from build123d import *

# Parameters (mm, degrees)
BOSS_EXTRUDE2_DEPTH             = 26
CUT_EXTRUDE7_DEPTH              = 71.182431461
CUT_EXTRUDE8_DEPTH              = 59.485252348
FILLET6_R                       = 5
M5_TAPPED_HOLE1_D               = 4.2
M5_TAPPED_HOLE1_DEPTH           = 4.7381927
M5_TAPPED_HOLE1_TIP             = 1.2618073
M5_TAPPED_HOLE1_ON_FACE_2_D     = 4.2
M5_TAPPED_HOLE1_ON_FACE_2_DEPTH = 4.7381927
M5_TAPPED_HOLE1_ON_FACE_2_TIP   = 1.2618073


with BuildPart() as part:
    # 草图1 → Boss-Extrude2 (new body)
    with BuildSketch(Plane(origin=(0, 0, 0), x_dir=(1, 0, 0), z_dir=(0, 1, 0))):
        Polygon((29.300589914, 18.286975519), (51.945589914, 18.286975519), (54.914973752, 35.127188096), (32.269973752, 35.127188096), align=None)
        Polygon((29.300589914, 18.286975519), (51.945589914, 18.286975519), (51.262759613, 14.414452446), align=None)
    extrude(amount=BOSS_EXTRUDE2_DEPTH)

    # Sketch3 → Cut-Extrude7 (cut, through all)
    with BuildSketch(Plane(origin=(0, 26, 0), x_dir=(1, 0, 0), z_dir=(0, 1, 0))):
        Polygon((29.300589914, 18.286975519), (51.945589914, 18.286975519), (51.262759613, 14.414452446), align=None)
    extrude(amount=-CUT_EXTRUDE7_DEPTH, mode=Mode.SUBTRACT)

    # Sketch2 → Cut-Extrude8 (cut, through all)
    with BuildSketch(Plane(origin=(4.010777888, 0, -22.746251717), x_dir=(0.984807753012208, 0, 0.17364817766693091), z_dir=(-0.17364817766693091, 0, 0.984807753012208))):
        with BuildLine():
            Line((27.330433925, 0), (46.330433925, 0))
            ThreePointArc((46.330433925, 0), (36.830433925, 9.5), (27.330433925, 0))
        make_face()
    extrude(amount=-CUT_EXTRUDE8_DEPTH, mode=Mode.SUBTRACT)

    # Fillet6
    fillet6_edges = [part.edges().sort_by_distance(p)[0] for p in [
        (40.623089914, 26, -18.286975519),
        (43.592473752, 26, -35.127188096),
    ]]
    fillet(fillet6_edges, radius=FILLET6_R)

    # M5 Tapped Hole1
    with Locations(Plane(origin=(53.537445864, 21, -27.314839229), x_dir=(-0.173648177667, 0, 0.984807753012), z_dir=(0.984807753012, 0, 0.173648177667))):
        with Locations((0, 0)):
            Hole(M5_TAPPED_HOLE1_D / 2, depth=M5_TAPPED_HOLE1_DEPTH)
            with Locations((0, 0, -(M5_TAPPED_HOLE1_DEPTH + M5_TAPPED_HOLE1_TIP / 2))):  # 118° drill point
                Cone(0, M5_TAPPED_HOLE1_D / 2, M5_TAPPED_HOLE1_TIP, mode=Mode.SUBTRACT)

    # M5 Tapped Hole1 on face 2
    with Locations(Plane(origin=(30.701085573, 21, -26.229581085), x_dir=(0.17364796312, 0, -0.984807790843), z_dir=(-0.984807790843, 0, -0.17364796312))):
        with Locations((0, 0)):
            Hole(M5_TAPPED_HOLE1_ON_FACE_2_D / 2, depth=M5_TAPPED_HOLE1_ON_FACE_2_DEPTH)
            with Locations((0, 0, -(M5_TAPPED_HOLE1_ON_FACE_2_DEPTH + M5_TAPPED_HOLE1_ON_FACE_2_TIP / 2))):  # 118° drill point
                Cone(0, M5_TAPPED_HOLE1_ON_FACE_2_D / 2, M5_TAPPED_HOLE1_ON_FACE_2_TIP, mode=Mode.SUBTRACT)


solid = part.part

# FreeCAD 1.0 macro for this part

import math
import FreeCAD as App
import Part
import Sketcher

V = App.Vector
Q = App.Units.Quantity


def edges_at(feature, points):
    """Names of the edges that pass closest to the given points."""
    edges = feature.Shape.Edges
    near = lambda p: min(range(len(edges)), key=lambda i: edges[i].distToShape(Part.Vertex(*p))[0])
    return sorted({f"Edge{near(p) + 1}" for p in points})


def add_polygon(sketch, points):
    """Adds a closed chain of lines whose ends are joined by coincident constraints."""
    first, n = sketch.GeometryCount, len(points)
    for a, b in zip(points, points[1:] + points[:1]):
        sketch.addGeometry(Part.LineSegment(App.Vector(*a, 0), App.Vector(*b, 0)), False)
    for i in range(n):
        sketch.addConstraint(Sketcher.Constraint("Coincident", first + i, 2, first + (i + 1) % n, 1))

doc = App.newDocument("Part")
body = doc.addObject("PartDesign::Body", "Body")

sketch1 = body.newObject("Sketcher::SketchObject", "Sketch")
sketch1.AttachmentSupport = (doc.getObject("XZ_Plane"), [""])
sketch1.MapMode = "FlatFace"
add_polygon(sketch1, [(51.9, -18.3), (54.9, -35.1), (32.3, -35.1), (29.3, -18.3), (51.3, -14.4)])
sketch1.addConstraint([
    Sketcher.Constraint("Horizontal", 1),
    Sketcher.Constraint("Parallel", 0, 2),
    Sketcher.Constraint("Perpendicular", 2, 3),
    Sketcher.Constraint("Perpendicular", 3, 4),
    Sketcher.Constraint("Horizontal", 2, 2, 4, 2),
    Sketcher.Constraint("Angle", 0, Q("-80 deg")),
    Sketcher.Constraint("Distance", 0, Q("17.1 mm")),
    Sketcher.Constraint("DistanceX", 1, 2, 1, 1, Q("22.645 mm")),
    Sketcher.Constraint("DistanceY", 0, 2, -1, 1, Q("35.127188 mm")),
    Sketcher.Constraint("DistanceX", -1, 1, 2, 2, Q("29.30059 mm")),
])
pad1 = body.newObject("PartDesign::Pad", "Pad")
pad1.Profile = sketch1
pad1.Length = 26
pad1.Reversed = True

sketch2 = body.newObject("Sketcher::SketchObject", "Sketch001")
sketch2.AttachmentSupport = (doc.getObject("XZ_Plane"), [""])
sketch2.MapMode = "FlatFace"
sketch2.AttachmentOffset = App.Placement(V(0, 0, -26), App.Rotation())
add_polygon(sketch2, [(51.9, -18.3), (29.3, -18.3), (51.3, -14.4)])
sketch2.addConstraint([
    Sketcher.Constraint("Horizontal", 0),
    Sketcher.Constraint("Perpendicular", 1, 2),
    Sketcher.Constraint("Angle", 1, Q("10 deg")),
    Sketcher.Constraint("DistanceX", 0, 2, 0, 1, Q("22.645 mm")),
    Sketcher.Constraint("DistanceX", -1, 1, 0, 2, Q("29.30059 mm")),
    Sketcher.Constraint("DistanceY", 0, 2, -1, 1, Q("18.286976 mm")),
])
pocket1 = body.newObject("PartDesign::Pocket", "Pocket")
pocket1.Profile = sketch2
pocket1.Type = "ThroughAll"
pocket1.Reversed = True

sketch3 = body.newObject("Sketcher::SketchObject", "Sketch002")
sketch3.Placement = App.Placement(V(4.010778, 0, -22.746252), App.Rotation(V(0.984807753, 0, 0.173648178), V(0, 1, 0), V(-0.173648178, 0, 0.984807753), "ZXY"))
sketch3.addGeometry([
    Part.LineSegment(V(27, 0, 0), V(46, 0, 0)),
    Part.ArcOfCircle(Part.Circle(V(37, 0, 0), V(0, 0, 1), 10), math.radians(0), math.radians(180)),
], False)
sketch3.addConstraint([
    Sketcher.Constraint("Coincident", 0, 1, 1, 2),
    Sketcher.Constraint("Coincident", 1, 1, 0, 2),
    Sketcher.Constraint("Horizontal", 0),
    Sketcher.Constraint("PointOnObject", 1, 3, -1),
    Sketcher.Constraint("PointOnObject", 0, 1, -1),
    Sketcher.Constraint("Radius", 1, Q("9.5 mm")),
    Sketcher.Constraint("DistanceX", -1, 1, 1, 3, Q("36.830434 mm")),
])
pocket2 = body.newObject("PartDesign::Pocket", "Pocket001")
pocket2.Profile = sketch3
pocket2.Type = "ThroughAll"
doc.recompute()

fillet = body.newObject("PartDesign::Fillet", "Fillet")
fillet.Base = (pocket2, edges_at(pocket2, [(40.623, 26, -18.287), (43.592, 26, -35.127)]))
fillet.Radius = 5

sketch4 = body.newObject("Sketcher::SketchObject", "Sketch003")
sketch4.Placement = App.Placement(V(47.251982, 0, 8.331799), App.Rotation(V(-0.173648178, 0, 0.984807753), V(0, -1, 0), V(0.984807753, 0, 0.173648178), "ZXY"))
sketch4.addGeometry(Part.Circle(V(-36.2, -21, 0), V(0, 0, 1), 2.1), False)
sketch4.addConstraint([
    Sketcher.Constraint("Diameter", 0, Q("4.2 mm")),
    Sketcher.Constraint("DistanceY", 0, 3, -1, 1, Q("21 mm")),
    Sketcher.Constraint("DistanceX", 0, 3, -1, 1, Q("36.196545 mm")),
])
doc.recompute()
hole = body.newObject("PartDesign::Hole", "Hole")
hole.Profile = sketch4
hole.ThreadType = "None"
hole.Diameter = 4.2
hole.DepthType = "Dimension"
hole.Depth = 4.738193
hole.DrillPoint = "Angled"
hole.DrillPointAngle = 118

sketch5 = body.newObject("Sketcher::SketchObject", "Sketch004")
sketch5.Placement = App.Placement(V(25.28982, 0, 4.459272), App.Rotation(V(0.173647963, 0, -0.984807791), V(0, -1, 0), V(-0.984807791, 0, -0.173647963), "ZXY"))
sketch5.addGeometry(Part.Circle(V(31.2, -21, 0), V(0, 0, 1), 2.1), False)
sketch5.addConstraint([
    Sketcher.Constraint("Diameter", 0, Q("4.2 mm")),
    Sketcher.Constraint("DistanceY", 0, 3, -1, 1, Q("21 mm")),
    Sketcher.Constraint("DistanceX", -1, 1, 0, 3, Q("31.162277 mm")),
])
doc.recompute()
hole2 = body.newObject("PartDesign::Hole", "Hole001")
hole2.Profile = sketch5
hole2.ThreadType = "None"
hole2.Diameter = 4.2
hole2.DepthType = "Dimension"
hole2.Depth = 4.738193
hole2.DrillPoint = "Angled"
hole2.DrillPointAngle = 118

doc.recompute()
